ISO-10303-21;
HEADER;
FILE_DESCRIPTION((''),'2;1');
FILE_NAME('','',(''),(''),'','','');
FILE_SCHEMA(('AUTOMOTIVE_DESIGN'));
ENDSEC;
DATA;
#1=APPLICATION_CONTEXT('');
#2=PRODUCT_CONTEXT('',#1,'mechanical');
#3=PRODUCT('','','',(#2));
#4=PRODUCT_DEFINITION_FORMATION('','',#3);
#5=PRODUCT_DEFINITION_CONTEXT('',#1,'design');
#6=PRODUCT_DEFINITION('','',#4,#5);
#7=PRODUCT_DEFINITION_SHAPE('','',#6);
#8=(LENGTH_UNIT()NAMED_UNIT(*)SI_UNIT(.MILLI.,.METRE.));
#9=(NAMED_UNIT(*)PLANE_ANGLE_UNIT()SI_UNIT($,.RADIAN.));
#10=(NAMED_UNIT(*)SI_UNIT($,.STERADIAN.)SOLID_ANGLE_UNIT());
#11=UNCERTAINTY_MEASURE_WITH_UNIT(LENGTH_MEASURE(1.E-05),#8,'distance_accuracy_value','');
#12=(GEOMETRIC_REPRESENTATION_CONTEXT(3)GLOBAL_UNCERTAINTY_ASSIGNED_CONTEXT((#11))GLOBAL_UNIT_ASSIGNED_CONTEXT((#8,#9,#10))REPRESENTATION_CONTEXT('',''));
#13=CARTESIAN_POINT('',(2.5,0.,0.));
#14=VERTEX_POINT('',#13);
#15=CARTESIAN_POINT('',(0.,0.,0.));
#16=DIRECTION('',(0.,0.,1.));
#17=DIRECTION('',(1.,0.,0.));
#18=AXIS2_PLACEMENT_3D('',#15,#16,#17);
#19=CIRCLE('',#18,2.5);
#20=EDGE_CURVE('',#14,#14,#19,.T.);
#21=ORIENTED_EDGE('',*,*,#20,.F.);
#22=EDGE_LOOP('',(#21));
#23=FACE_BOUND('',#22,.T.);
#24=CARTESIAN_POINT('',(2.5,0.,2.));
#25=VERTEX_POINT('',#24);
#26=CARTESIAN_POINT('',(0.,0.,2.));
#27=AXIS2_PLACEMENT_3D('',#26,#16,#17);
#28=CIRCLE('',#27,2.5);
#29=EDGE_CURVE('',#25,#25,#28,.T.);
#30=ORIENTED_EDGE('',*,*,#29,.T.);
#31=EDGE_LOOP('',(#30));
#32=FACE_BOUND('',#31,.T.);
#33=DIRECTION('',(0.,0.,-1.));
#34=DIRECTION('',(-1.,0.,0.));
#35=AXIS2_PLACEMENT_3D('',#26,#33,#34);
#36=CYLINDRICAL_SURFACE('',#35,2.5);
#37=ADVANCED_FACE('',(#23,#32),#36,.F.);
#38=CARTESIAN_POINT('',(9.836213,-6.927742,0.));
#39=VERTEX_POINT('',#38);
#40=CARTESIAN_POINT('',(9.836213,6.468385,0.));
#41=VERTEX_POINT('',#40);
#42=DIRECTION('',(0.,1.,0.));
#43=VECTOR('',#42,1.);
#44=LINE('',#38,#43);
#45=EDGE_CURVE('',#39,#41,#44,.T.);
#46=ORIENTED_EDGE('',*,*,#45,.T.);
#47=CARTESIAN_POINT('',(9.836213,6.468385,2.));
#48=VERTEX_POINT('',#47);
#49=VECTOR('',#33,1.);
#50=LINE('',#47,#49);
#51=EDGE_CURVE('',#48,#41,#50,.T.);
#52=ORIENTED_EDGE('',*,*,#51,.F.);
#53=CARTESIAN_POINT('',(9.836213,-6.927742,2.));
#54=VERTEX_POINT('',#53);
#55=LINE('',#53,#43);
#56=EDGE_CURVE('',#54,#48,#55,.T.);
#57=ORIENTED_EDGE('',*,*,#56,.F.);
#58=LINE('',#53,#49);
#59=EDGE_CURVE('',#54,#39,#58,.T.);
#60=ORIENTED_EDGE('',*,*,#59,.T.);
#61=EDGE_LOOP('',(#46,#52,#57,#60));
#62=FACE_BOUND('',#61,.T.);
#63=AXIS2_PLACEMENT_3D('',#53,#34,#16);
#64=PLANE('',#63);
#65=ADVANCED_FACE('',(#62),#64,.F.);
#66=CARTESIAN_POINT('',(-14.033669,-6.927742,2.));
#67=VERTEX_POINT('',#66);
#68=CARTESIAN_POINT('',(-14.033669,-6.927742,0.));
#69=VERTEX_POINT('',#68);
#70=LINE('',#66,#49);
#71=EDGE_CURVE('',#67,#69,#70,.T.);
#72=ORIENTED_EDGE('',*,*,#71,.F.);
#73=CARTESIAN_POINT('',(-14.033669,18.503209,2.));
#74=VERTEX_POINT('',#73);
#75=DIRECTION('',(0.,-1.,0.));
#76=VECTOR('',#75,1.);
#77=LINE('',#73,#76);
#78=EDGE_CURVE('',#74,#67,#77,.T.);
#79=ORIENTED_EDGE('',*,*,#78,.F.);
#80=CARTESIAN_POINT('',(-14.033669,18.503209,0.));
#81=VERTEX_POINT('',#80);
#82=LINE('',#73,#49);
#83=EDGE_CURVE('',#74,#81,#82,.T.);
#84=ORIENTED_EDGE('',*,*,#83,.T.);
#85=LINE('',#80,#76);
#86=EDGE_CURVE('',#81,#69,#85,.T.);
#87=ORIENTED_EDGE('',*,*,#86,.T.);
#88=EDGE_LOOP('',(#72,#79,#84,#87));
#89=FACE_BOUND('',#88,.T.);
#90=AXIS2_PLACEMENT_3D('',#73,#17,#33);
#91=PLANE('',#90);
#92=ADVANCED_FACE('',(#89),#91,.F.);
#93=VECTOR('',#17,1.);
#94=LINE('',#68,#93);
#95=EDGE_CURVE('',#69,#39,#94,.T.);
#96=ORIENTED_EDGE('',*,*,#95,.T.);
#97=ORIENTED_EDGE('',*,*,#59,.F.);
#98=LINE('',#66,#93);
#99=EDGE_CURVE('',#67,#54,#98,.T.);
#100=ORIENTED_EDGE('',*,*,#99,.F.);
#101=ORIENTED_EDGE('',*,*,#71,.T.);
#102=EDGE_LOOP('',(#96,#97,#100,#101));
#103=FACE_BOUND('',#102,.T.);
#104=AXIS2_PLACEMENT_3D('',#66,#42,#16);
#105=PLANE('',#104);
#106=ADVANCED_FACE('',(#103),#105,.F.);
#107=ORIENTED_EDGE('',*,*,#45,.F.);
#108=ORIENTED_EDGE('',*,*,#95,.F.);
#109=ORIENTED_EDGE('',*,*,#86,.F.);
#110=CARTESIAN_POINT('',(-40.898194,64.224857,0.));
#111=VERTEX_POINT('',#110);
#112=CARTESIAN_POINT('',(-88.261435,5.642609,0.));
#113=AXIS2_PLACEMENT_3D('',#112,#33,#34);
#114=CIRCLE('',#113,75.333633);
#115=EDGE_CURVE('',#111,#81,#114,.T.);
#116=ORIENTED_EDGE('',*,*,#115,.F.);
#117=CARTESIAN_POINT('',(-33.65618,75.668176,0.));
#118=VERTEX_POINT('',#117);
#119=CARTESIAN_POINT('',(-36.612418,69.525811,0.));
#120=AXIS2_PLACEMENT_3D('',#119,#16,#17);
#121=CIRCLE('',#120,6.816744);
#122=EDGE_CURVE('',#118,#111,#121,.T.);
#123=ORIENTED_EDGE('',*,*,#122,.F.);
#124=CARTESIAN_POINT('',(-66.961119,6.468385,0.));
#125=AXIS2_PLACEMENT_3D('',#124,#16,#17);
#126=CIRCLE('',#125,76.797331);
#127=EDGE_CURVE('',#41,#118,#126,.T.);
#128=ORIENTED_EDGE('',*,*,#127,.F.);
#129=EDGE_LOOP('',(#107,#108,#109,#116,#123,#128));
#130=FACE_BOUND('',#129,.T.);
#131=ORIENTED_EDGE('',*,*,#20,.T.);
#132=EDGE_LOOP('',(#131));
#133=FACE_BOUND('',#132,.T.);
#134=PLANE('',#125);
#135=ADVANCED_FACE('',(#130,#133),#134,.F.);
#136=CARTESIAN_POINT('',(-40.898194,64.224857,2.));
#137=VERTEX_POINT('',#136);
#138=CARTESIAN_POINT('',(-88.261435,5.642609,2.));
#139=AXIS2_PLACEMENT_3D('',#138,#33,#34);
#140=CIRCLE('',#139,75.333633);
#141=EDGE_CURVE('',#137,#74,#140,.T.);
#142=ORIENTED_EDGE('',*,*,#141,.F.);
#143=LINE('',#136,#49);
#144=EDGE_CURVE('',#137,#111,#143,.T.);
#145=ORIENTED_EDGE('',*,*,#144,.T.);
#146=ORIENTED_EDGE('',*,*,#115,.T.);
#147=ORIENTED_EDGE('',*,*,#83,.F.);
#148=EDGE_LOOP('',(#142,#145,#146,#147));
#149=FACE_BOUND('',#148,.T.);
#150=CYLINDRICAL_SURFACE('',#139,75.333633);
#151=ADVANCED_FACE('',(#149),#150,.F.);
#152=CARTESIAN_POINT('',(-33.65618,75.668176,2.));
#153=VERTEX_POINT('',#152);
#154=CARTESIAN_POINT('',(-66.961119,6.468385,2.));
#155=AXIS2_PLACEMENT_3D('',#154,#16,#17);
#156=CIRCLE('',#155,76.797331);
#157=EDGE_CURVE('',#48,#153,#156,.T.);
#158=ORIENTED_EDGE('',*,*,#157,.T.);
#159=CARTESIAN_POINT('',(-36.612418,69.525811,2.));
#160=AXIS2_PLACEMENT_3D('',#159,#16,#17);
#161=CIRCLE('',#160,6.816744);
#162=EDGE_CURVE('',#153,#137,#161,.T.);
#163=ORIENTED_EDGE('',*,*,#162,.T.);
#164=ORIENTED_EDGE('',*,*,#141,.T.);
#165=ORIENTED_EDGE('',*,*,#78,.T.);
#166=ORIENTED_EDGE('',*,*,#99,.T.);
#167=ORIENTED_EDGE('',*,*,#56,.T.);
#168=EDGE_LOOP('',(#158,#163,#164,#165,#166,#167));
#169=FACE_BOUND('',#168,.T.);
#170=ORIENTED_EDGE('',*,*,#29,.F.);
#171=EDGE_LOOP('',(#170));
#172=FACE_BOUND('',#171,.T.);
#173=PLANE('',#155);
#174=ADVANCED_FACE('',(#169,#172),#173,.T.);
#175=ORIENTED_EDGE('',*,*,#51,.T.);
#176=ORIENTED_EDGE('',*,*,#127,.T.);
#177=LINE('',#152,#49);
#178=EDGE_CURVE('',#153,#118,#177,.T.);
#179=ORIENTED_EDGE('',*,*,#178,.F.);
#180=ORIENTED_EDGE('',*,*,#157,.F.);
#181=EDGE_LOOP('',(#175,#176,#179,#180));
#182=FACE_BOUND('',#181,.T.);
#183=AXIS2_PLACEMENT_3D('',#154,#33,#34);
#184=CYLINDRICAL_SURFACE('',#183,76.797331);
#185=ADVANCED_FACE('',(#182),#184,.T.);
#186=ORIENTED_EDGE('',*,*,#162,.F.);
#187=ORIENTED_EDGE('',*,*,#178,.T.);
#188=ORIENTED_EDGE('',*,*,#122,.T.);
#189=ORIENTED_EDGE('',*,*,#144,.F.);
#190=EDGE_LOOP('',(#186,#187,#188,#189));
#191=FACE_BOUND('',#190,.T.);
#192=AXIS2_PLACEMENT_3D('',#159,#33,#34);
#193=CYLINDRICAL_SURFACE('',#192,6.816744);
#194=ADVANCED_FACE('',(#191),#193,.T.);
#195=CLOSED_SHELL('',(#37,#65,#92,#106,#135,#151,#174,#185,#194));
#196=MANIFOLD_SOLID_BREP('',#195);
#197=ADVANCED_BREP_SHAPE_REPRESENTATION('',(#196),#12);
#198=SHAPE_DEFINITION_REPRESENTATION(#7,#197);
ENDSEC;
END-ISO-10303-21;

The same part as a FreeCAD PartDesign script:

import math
import FreeCAD as App
import Part
import Sketcher
from FreeCAD import Vector

doc = App.newDocument("Part")
body = doc.addObject("PartDesign::Body", "Body")

# Sketch on XY plane
sketch1 = body.newObject("Sketcher::SketchObject", "Sketch")
sketch1.AttachmentSupport = (doc.getObject("XY_Plane"), [""])
sketch1.MapMode = "FlatFace"
sketch1.addGeometry([
    Part.LineSegment(Vector(-14, -6.9, 0), Vector(9.8, -6.9, 0)),  # 0
    Part.LineSegment(Vector(9.8, -6.9, 0), Vector(9.8, 6.5, 0)),  # 1
    Part.ArcOfCircle(Part.Circle(Vector(-67, 6.5, 0), Vector(0, 0, 1), 76.8), math.radians(0), math.radians(64)),  # 2
    Part.ArcOfCircle(Part.Circle(Vector(-36.6, 69.5, 0), Vector(0, 0, 1), 6.8), math.radians(64), math.radians(231)),  # 3
    Part.ArcOfCircle(Part.Circle(Vector(-88.3, 5.6, 0), Vector(0, 0, 1), 75.3), math.radians(10), math.radians(51)),  # 4
    Part.LineSegment(Vector(-14, 18.5, 0), Vector(-14, -6.9, 0)),  # 5
    Part.Circle(Vector(0, 0, 0), Vector(0, 0, 1), 2.5),  # 6
], False)
sketch1.addConstraint([
    Sketcher.Constraint("Coincident", 0, 2, 1, 1),
    Sketcher.Constraint("Tangent", 1, 2, 2, 1),
    Sketcher.Constraint("Tangent", 2, 2, 3, 1),
    Sketcher.Constraint("Tangent", 3, 2, 4, 2),
    Sketcher.Constraint("Coincident", 4, 1, 5, 1),
    Sketcher.Constraint("Coincident", 5, 2, 0, 1),
    Sketcher.Constraint("Horizontal", 0),
    Sketcher.Constraint("Vertical", 1),
    Sketcher.Constraint("Vertical", 5),
    Sketcher.Constraint("Coincident", 6, 3, -1, 1),
    Sketcher.Constraint("Diameter", 6, 5.0),
    Sketcher.Constraint("Radius", 2, 76.797331),
    Sketcher.Constraint("Radius", 3, 6.816744),
    Sketcher.Constraint("Radius", 4, 75.333633),
    Sketcher.Constraint("DistanceX", 0, 1, 0, 2, 23.869881),
    Sketcher.Constraint("DistanceY", 5, 2, 5, 1, 25.43095),
    Sketcher.Constraint("DistanceX", 2, 3, 3, 3, 30.3487),
    Sketcher.Constraint("DistanceY", 1, 1, 1, 2, 13.396126),
    Sketcher.Constraint("DistanceX", 2, 3, -1, 1, 66.961119),
    Sketcher.Constraint("DistanceY", -1, 1, 3, 3, 69.525811),
])
pad1 = body.newObject("PartDesign::Pad", "Pad")
pad1.Profile = sketch1
pad1.Length = 2

doc.recompute()
